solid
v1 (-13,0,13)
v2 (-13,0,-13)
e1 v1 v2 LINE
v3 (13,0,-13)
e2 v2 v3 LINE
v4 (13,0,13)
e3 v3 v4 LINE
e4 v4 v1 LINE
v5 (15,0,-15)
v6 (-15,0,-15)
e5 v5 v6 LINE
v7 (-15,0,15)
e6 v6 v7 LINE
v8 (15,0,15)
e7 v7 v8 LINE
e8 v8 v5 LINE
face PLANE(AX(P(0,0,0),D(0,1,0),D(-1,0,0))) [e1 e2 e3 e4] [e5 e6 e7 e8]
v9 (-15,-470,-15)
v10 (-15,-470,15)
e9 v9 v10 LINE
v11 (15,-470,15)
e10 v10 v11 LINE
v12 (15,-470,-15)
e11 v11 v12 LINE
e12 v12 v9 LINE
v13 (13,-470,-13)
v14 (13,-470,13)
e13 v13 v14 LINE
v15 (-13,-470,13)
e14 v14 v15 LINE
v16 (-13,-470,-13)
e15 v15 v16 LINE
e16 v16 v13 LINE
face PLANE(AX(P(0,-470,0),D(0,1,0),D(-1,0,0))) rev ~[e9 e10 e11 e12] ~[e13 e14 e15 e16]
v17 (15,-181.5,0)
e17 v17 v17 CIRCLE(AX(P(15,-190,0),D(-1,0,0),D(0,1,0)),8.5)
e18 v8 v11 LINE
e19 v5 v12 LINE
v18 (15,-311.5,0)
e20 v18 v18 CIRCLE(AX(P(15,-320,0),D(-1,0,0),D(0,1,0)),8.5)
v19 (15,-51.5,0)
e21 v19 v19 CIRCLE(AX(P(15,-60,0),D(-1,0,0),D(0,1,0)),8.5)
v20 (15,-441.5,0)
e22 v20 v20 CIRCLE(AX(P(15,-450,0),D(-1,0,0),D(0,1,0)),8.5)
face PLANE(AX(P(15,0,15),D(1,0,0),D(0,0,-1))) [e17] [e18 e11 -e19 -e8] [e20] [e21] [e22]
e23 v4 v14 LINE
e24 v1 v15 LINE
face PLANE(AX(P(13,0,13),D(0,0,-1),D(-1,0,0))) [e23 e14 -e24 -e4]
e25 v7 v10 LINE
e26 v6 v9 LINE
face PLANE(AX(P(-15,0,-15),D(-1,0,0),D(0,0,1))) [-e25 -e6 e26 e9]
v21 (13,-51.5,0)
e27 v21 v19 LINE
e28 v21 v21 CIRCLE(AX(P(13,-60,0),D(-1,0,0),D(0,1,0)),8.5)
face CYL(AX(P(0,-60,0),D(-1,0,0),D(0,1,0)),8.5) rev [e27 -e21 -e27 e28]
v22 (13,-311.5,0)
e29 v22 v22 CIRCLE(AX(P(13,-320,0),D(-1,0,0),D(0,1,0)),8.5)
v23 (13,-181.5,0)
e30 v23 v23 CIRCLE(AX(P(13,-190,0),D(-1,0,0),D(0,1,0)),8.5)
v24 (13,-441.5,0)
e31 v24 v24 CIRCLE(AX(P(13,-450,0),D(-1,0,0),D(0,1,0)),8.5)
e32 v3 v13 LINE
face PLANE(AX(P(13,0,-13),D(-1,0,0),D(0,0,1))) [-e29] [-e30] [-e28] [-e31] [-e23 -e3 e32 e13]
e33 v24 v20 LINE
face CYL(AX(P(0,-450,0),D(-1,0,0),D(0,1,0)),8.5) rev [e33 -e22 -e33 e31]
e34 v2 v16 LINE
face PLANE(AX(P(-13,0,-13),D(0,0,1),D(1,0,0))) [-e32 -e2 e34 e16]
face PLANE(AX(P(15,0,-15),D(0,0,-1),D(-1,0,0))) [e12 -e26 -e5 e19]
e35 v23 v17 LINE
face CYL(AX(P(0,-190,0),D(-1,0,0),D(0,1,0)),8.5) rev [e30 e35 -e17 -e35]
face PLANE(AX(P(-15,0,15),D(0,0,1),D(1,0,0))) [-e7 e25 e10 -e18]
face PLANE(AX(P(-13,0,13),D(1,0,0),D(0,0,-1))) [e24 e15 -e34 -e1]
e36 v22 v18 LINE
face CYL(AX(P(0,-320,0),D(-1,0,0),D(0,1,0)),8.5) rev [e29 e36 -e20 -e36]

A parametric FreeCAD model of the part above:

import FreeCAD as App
import Part
import Sketcher

doc = App.newDocument("Part")
params = doc.addObject("Spreadsheet::Sheet", "Params")
for row, (alias, value) in enumerate([
    ("sketch1_width", "30 mm"),
    ("pad1_length", "470 mm"),
    ("sketch2_diameter", "17 mm"),
], start=1):
    params.set(f"A{row}", alias)
    params.set(f"B{row}", "=" + value)
    params.setAlias(f"B{row}", alias)

body = doc.addObject("PartDesign::Body", "Body")

sketch1 = body.newObject("Sketcher::SketchObject", "Sketch")
sketch1.AttachmentSupport = (doc.getObject("XZ_Plane"), [""])
sketch1.MapMode = "FlatFace"
sketch1.addGeometry([
    Part.LineSegment(App.Vector(-15, -15, 0), App.Vector(-15, 15, 0)),
    Part.LineSegment(App.Vector(-15, 15, 0), App.Vector(15, 15, 0)),
    Part.LineSegment(App.Vector(15, 15, 0), App.Vector(15, -15, 0)),
    Part.LineSegment(App.Vector(15, -15, 0), App.Vector(-15, -15, 0)),
    Part.LineSegment(App.Vector(13, -13, 0), App.Vector(13, 13, 0)),
    Part.LineSegment(App.Vector(13, 13, 0), App.Vector(-13, 13, 0)),
    Part.LineSegment(App.Vector(-13, 13, 0), App.Vector(-13, -13, 0)),
    Part.LineSegment(App.Vector(-13, -13, 0), App.Vector(13, -13, 0)),
], False)
sketch1.addConstraint([
    Sketcher.Constraint("Coincident", 0, 2, 1, 1),
    Sketcher.Constraint("Coincident", 1, 2, 2, 1),
    Sketcher.Constraint("Coincident", 2, 2, 3, 1),
    Sketcher.Constraint("Coincident", 3, 2, 0, 1),
    Sketcher.Constraint("Coincident", 4, 2, 5, 1),
    Sketcher.Constraint("Coincident", 5, 2, 6, 1),
    Sketcher.Constraint("Coincident", 6, 2, 7, 1),
    Sketcher.Constraint("Coincident", 7, 2, 4, 1),
    Sketcher.Constraint("Vertical", 0),
    Sketcher.Constraint("Horizontal", 1),
    Sketcher.Constraint("Vertical", 2),
    Sketcher.Constraint("Horizontal", 3),
    Sketcher.Constraint("Vertical", 4),
    Sketcher.Constraint("Horizontal", 5),
    Sketcher.Constraint("Vertical", 6),
    Sketcher.Constraint("Horizontal", 7),
    Sketcher.Constraint("Symmetric", 0, 2, 2, 2, -1, 1),
    Sketcher.Constraint("Symmetric", 4, 2, 6, 2, -1, 1),
    Sketcher.Constraint("Equal", 3, 0),
    Sketcher.Constraint("Equal", 7, 4),
    Sketcher.Constraint("DistanceX", 1, 1, 1, 2, 30.0),
    Sketcher.Constraint("DistanceX", 4, 2, 1, 2, 2.0),
])
sketch1.setExpression("Constraints[20]", "Params.sketch1_width")
pad1 = body.newObject("PartDesign::Pad", "Pad")
pad1.Profile = sketch1
pad1.setExpression("Length", "Params.pad1_length")

sketch2 = body.newObject("Sketcher::SketchObject", "Sketch001")
sketch2.AttachmentSupport = (doc.getObject("YZ_Plane"), [""])
sketch2.MapMode = "FlatFace"
sketch2.addGeometry([
    Part.Circle(App.Vector(-60, 0, 0), App.Vector(0, 0, 1), 8),
    Part.Circle(App.Vector(-190, 0, 0), App.Vector(0, 0, 1), 8),
    Part.Circle(App.Vector(-320, 0, 0), App.Vector(0, 0, 1), 8),
    Part.Circle(App.Vector(-450, 0, 0), App.Vector(0, 0, 1), 8),
], False)
sketch2.addConstraint([
    Sketcher.Constraint("Equal", 0, 1),
    Sketcher.Constraint("Equal", 1, 2),
    Sketcher.Constraint("Equal", 2, 3),
    Sketcher.Constraint("PointOnObject", 0, 3, -1),
    Sketcher.Constraint("PointOnObject", 1, 3, -1),
    Sketcher.Constraint("PointOnObject", 2, 3, -1),
    Sketcher.Constraint("PointOnObject", 3, 3, -1),
    Sketcher.Constraint("Diameter", 0, 17.0),
    Sketcher.Constraint("DistanceX", 0, 3, -1, 1, 60.0),
    Sketcher.Constraint("DistanceX", 1, 3, -1, 1, 190.0),
    Sketcher.Constraint("DistanceX", 2, 3, -1, 1, 320.0),
    Sketcher.Constraint("DistanceX", 3, 3, -1, 1, 450.0),
])
sketch2.setExpression("Constraints[7]", "Params.sketch2_diameter")
pocket1 = body.newObject("PartDesign::Pocket", "Pocket")
pocket1.Profile = sketch2
pocket1.Type = "ThroughAll"
pocket1.Reversed = True

doc.recompute()
